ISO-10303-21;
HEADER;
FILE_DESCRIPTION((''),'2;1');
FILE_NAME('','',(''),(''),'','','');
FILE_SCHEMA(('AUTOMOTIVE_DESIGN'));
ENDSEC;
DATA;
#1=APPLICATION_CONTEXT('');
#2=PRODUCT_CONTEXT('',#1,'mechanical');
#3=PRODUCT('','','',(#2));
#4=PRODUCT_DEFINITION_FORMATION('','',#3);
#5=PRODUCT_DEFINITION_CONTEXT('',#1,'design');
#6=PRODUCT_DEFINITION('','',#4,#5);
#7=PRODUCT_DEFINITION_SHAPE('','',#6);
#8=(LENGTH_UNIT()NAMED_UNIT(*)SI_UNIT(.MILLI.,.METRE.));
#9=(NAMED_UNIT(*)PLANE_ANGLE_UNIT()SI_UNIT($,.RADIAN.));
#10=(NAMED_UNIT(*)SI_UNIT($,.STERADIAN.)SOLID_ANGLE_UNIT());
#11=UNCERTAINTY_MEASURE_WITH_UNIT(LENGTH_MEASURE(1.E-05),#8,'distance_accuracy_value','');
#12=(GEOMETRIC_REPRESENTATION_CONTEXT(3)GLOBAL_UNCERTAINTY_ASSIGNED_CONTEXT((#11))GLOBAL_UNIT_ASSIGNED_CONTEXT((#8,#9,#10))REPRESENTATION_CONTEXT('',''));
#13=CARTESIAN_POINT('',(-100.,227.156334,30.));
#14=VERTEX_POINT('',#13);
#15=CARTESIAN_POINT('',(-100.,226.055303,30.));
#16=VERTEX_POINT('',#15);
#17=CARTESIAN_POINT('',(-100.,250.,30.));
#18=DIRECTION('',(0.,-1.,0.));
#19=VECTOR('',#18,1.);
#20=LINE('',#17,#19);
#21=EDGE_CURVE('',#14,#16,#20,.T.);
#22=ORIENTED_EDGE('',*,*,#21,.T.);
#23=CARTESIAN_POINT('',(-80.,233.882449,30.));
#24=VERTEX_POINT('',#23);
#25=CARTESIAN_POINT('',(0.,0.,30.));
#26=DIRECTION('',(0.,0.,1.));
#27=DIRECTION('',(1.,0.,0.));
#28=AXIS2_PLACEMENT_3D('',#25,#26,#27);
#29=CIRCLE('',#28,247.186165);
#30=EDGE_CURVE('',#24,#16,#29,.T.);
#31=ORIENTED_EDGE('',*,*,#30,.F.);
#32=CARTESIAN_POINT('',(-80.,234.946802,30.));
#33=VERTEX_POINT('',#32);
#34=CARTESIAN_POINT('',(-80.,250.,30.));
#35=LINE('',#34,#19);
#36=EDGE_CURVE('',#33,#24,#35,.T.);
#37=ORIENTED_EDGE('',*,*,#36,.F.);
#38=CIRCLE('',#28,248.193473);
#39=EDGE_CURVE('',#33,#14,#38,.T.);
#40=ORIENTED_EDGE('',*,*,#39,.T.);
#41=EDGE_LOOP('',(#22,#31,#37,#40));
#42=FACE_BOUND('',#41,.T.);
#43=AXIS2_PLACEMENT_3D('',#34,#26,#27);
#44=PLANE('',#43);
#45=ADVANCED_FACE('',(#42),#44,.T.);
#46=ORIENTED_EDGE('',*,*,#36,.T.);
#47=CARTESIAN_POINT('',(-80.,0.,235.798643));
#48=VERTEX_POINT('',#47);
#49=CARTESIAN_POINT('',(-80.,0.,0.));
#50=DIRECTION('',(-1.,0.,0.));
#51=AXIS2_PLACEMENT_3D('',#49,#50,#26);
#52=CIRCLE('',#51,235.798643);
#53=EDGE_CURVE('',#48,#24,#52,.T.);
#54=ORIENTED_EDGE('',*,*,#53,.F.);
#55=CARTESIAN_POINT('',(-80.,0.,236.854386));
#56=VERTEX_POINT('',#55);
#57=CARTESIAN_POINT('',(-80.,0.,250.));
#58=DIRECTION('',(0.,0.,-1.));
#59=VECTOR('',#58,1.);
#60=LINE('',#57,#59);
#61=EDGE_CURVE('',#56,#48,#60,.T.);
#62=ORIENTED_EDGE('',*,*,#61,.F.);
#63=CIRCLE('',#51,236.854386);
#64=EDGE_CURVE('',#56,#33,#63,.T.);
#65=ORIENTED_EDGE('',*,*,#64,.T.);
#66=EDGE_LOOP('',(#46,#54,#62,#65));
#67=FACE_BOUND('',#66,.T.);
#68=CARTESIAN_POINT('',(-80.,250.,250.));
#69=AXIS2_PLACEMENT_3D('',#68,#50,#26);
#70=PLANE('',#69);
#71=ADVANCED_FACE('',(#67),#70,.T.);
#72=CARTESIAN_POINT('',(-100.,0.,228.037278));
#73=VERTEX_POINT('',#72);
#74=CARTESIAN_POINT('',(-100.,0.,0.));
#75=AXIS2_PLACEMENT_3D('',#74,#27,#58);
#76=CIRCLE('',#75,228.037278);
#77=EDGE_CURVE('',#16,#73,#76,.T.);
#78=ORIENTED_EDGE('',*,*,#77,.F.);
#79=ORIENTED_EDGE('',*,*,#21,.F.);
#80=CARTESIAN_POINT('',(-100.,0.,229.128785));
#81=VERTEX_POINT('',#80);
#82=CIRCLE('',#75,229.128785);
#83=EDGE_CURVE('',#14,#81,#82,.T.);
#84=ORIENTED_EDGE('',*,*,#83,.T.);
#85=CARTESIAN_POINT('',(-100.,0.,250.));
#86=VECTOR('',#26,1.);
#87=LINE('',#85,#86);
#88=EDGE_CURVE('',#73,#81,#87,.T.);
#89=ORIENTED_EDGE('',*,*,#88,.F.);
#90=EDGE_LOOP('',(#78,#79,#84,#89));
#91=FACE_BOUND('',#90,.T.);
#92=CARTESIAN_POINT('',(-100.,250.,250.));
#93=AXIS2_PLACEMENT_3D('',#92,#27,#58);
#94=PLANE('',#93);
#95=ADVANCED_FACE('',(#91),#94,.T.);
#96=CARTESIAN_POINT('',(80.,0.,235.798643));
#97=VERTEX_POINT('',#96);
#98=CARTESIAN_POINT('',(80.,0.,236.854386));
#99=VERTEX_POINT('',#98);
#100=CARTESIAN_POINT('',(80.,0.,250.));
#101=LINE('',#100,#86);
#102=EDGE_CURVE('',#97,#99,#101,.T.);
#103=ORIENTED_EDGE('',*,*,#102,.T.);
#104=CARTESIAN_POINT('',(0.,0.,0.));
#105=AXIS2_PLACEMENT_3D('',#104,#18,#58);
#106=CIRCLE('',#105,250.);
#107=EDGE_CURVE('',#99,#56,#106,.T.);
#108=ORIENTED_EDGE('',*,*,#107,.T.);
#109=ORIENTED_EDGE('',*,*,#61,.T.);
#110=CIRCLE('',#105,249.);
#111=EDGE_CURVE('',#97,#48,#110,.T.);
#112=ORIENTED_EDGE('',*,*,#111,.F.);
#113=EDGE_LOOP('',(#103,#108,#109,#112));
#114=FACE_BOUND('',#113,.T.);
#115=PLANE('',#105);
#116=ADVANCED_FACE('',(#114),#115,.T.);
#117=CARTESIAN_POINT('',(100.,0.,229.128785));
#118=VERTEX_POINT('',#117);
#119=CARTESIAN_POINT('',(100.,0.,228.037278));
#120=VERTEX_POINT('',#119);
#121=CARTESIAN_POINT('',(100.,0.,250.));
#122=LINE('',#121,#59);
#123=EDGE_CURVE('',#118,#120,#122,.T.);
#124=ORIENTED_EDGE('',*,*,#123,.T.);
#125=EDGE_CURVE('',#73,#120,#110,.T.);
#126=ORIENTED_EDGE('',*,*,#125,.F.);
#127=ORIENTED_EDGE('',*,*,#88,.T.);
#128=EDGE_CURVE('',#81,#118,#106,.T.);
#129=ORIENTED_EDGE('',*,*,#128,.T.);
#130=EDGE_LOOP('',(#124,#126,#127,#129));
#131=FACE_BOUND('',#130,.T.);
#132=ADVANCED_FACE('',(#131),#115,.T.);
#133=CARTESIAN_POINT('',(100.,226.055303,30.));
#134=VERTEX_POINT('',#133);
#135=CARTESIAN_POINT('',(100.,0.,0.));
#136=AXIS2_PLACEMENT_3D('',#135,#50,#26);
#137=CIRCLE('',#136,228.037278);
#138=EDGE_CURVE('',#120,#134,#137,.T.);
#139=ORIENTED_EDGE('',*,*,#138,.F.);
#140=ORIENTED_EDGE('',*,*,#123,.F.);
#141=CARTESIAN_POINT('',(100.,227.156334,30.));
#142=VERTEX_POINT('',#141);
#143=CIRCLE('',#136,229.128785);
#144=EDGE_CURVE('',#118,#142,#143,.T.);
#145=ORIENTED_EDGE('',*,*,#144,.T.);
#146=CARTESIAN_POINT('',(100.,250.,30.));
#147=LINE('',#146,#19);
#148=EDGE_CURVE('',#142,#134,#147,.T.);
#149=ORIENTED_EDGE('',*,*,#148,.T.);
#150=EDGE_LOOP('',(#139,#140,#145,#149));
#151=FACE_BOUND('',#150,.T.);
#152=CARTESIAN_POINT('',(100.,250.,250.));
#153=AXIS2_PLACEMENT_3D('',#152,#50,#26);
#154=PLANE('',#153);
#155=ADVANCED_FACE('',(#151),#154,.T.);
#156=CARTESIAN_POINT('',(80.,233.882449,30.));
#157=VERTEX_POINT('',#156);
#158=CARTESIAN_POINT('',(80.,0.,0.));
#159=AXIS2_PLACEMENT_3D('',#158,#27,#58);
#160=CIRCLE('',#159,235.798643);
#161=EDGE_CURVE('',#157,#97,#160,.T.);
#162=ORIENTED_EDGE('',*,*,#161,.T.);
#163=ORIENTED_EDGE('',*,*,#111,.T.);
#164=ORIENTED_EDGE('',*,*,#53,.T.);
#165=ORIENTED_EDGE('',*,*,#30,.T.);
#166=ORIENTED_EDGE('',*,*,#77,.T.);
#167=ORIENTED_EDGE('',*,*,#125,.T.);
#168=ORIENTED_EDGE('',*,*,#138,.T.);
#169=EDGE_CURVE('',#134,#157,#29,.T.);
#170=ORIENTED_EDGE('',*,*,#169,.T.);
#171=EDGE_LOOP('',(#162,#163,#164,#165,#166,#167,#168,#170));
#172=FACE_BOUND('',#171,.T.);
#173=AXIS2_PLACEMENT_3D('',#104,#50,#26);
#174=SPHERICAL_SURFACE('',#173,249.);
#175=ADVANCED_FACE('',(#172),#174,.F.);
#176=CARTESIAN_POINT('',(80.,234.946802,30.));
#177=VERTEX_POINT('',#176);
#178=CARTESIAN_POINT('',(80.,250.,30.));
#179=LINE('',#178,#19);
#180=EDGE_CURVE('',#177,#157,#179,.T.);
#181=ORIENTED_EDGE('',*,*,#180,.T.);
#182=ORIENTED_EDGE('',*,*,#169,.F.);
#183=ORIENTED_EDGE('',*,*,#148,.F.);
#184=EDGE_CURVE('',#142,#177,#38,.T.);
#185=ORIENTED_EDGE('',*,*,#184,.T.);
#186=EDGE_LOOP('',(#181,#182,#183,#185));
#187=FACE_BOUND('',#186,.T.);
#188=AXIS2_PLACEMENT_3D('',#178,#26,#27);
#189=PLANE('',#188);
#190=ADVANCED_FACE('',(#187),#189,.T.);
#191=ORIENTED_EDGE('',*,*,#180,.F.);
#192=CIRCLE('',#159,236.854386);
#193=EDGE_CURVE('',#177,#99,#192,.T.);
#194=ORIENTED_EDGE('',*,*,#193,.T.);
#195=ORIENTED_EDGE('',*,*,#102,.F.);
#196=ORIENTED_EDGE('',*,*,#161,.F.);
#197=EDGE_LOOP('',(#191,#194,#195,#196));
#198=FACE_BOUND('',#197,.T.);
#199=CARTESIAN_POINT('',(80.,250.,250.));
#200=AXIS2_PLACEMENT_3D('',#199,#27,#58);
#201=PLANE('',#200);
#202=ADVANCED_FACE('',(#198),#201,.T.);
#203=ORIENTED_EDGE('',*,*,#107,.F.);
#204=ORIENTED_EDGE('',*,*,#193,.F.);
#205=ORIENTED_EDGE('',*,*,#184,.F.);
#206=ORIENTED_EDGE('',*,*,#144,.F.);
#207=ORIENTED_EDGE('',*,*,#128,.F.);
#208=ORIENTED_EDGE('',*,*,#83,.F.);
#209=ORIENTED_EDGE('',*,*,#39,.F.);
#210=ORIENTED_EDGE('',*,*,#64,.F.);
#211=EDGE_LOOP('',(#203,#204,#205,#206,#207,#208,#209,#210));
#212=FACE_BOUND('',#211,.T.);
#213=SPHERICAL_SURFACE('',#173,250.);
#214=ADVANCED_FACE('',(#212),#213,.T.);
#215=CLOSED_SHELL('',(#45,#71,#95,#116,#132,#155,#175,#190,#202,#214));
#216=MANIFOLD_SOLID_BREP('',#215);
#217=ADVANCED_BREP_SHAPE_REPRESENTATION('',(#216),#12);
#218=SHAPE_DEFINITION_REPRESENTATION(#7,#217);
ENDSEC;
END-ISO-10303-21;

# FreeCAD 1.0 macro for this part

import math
import FreeCAD as App
import Part
import Sketcher

V = App.Vector
Q = App.Units.Quantity


def faces_at(feature, points):
    """Names of the faces that lie closest to the given points."""
    faces = feature.Shape.Faces
    near = lambda p: min(range(len(faces)), key=lambda i: faces[i].distToShape(Part.Vertex(*p))[0])
    return sorted({f"Face{near(p) + 1}" for p in points})

doc = App.newDocument("Part")
body = doc.addObject("PartDesign::Body", "Body")

# Sketch on XZ plane
sketch1 = body.newObject("Sketcher::SketchObject", "Sketch")
sketch1.AttachmentSupport = (doc.getObject("XZ_Plane"), [""])
sketch1.MapMode = "FlatFace"
sketch1.addGeometry([
    Part.LineSegment(V(-250, 0, 0), V(250, 0, 0)),
    Part.ArcOfCircle(Part.Circle(V(0, 0, 0), V(0, 0, 1), 250), math.radians(180), math.radians(360)),
], False)
sketch1.addConstraint([
    Sketcher.Constraint("Coincident", 0, 1, 1, 1),
    Sketcher.Constraint("Coincident", 1, 2, 0, 2),
    Sketcher.Constraint("Horizontal", 0),
    Sketcher.Constraint("Coincident", 1, 3, -1, 1),
    Sketcher.Constraint("PointOnObject", 0, 1, -1),
    Sketcher.Constraint("Radius", 1, Q("250 mm")),
])
revolution = body.newObject("PartDesign::Revolution", "Revolution")
revolution.Profile = sketch1
revolution.ReferenceAxis = (sketch1, ["H_Axis"])
revolution.Angle = 180
doc.recompute()

thickness = body.newObject("PartDesign::Thickness", "Thickness")
thickness.Base = (revolution, faces_at(revolution, [(0, 0, 0)]))
thickness.Value = 1
thickness.Reversed = True
thickness.Join = "Arc"

# Sketch on XZ plane
sketch2 = body.newObject("Sketcher::SketchObject", "Sketch001")
sketch2.AttachmentSupport = (doc.getObject("XZ_Plane"), [""])
sketch2.MapMode = "FlatFace"
sketch2.addGeometry([
    Part.LineSegment(V(-100, 30, 0), V(-100, 250, 0)),  # 0
    Part.LineSegment(V(-100, 250, 0), V(-80, 250, 0)),  # 1
    Part.LineSegment(V(-80, 250, 0), V(-80, 30, 0)),  # 2
    Part.LineSegment(V(-80, 30, 0), V(-100, 30, 0)),  # 3
    Part.LineSegment(V(80, 30, 0), V(80, 250, 0)),  # 4
    Part.LineSegment(V(80, 250, 0), V(100, 250, 0)),  # 5
    Part.LineSegment(V(100, 250, 0), V(100, 30, 0)),  # 6
    Part.LineSegment(V(100, 30, 0), V(80, 30, 0)),  # 7
], False)
sketch2.addConstraint([
    Sketcher.Constraint("Coincident", 0, 2, 1, 1),
    Sketcher.Constraint("Coincident", 1, 2, 2, 1),
    Sketcher.Constraint("Coincident", 2, 2, 3, 1),
    Sketcher.Constraint("Coincident", 3, 2, 0, 1),
    Sketcher.Constraint("Coincident", 4, 2, 5, 1),
    Sketcher.Constraint("Coincident", 5, 2, 6, 1),
    Sketcher.Constraint("Coincident", 6, 2, 7, 1),
    Sketcher.Constraint("Coincident", 7, 2, 4, 1),
    Sketcher.Constraint("Vertical", 0),
    Sketcher.Constraint("Horizontal", 1),
    Sketcher.Constraint("Vertical", 2),
    Sketcher.Constraint("Horizontal", 3),
    Sketcher.Constraint("Vertical", 4),
    Sketcher.Constraint("Horizontal", 5),
    Sketcher.Constraint("Vertical", 6),
    Sketcher.Constraint("Horizontal", 7),
    Sketcher.Constraint("Symmetric", 1, 2, 4, 2, -2),
    Sketcher.Constraint("Symmetric", 3, 2, 6, 2, -2),
    Sketcher.Constraint("DistanceX", 1, 1, 1, 2, Q("20 mm")),
    Sketcher.Constraint("DistanceY", 0, 1, 0, 2, Q("220 mm")),
    Sketcher.Constraint("DistanceX", 0, 2, -1, 1, Q("100 mm")),
    Sketcher.Constraint("DistanceY", -1, 1, 0, 2, Q("250 mm")),
])
pocket1 = body.newObject("PartDesign::Pocket", "Pocket")
pocket1.Profile = sketch2
pocket1.Type = "ThroughAll"

doc.recompute()
